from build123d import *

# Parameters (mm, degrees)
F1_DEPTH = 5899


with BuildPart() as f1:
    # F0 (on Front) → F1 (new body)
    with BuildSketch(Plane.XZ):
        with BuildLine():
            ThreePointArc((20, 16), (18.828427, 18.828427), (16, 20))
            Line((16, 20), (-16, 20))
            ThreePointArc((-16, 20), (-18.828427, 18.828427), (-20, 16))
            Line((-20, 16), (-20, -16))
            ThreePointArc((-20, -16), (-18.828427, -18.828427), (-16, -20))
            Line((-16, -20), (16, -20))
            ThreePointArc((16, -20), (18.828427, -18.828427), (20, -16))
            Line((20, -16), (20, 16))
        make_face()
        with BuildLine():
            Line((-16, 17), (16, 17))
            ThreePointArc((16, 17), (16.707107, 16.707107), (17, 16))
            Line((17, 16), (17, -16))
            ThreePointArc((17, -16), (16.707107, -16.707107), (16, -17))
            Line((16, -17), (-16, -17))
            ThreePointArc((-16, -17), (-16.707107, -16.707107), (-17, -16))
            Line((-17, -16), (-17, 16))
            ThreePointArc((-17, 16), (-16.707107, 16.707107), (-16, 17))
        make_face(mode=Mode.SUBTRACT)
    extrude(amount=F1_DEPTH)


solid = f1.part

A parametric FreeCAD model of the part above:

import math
import FreeCAD as App
import Part
import Sketcher
from FreeCAD import Vector
Q = App.Units.Quantity

doc = App.newDocument("Part")
body = doc.addObject("PartDesign::Body", "Body")

sketch1 = doc.addObject("Sketcher::SketchObject", "Sketch")
body.addObject(sketch1)
sketch1.AttachmentSupport = (doc.XZ_Plane, [""])
sketch1.MapMode = "FlatFace"
sketch1.addGeometry(Part.ArcOfCircle(Part.Circle(Vector(16, 16, 0), Vector(0, 0, 1), 4), math.radians(0), math.radians(90)), False)
sketch1.addGeometry(Part.LineSegment(Vector(16, 20, 0), Vector(-16, 20, 0)), False)
sketch1.addGeometry(Part.ArcOfCircle(Part.Circle(Vector(-16, 16, 0), Vector(0, 0, 1), 4), math.radians(90), math.radians(180)), False)
sketch1.addGeometry(Part.LineSegment(Vector(-20, 16, 0), Vector(-20, -16, 0)), False)
sketch1.addGeometry(Part.ArcOfCircle(Part.Circle(Vector(-16, -16, 0), Vector(0, 0, 1), 4), math.radians(-180), math.radians(-90)), False)
sketch1.addGeometry(Part.LineSegment(Vector(-16, -20, 0), Vector(16, -20, 0)), False)
sketch1.addGeometry(Part.ArcOfCircle(Part.Circle(Vector(16, -16, 0), Vector(0, 0, 1), 4), math.radians(-90), math.radians(0)), False)
sketch1.addGeometry(Part.LineSegment(Vector(20, -16, 0), Vector(20, 16, 0)), False)
sketch1.addGeometry(Part.ArcOfCircle(Part.Circle(Vector(-16, 16, 0), Vector(0, 0, 1), 1), math.radians(90), math.radians(180)), False)
sketch1.addGeometry(Part.LineSegment(Vector(-16, 17, 0), Vector(16, 17, 0)), False)
sketch1.addGeometry(Part.ArcOfCircle(Part.Circle(Vector(16, 16, 0), Vector(0, 0, 1), 1), math.radians(0), math.radians(90)), False)
sketch1.addGeometry(Part.LineSegment(Vector(17, 16, 0), Vector(17, -16, 0)), False)
sketch1.addGeometry(Part.ArcOfCircle(Part.Circle(Vector(16, -16, 0), Vector(0, 0, 1), 1), math.radians(-90), math.radians(0)), False)
sketch1.addGeometry(Part.LineSegment(Vector(16, -17, 0), Vector(-16, -17, 0)), False)
sketch1.addGeometry(Part.ArcOfCircle(Part.Circle(Vector(-16, -16, 0), Vector(0, 0, 1), 1), math.radians(180), math.radians(270)), False)
sketch1.addGeometry(Part.LineSegment(Vector(-17, -16, 0), Vector(-17, 16, 0)), False)
sketch1.addConstraint(Sketcher.Constraint("Tangent", 0, 2, 1, 1))
sketch1.addConstraint(Sketcher.Constraint("Tangent", 1, 2, 2, 1))
sketch1.addConstraint(Sketcher.Constraint("Tangent", 2, 2, 3, 1))
sketch1.addConstraint(Sketcher.Constraint("Tangent", 3, 2, 4, 1))
sketch1.addConstraint(Sketcher.Constraint("Tangent", 4, 2, 5, 1))
sketch1.addConstraint(Sketcher.Constraint("Tangent", 5, 2, 6, 1))
sketch1.addConstraint(Sketcher.Constraint("Tangent", 6, 2, 7, 1))
sketch1.addConstraint(Sketcher.Constraint("Tangent", 7, 2, 0, 1))
sketch1.addConstraint(Sketcher.Constraint("Tangent", 8, 1, 9, 1))
sketch1.addConstraint(Sketcher.Constraint("Tangent", 9, 2, 10, 2))
sketch1.addConstraint(Sketcher.Constraint("Tangent", 10, 1, 11, 1))
sketch1.addConstraint(Sketcher.Constraint("Tangent", 11, 2, 12, 2))
sketch1.addConstraint(Sketcher.Constraint("Tangent", 12, 1, 13, 1))
sketch1.addConstraint(Sketcher.Constraint("Tangent", 13, 2, 14, 2))
sketch1.addConstraint(Sketcher.Constraint("Tangent", 14, 1, 15, 1))
sketch1.addConstraint(Sketcher.Constraint("Tangent", 15, 2, 8, 2))
sketch1.addConstraint(Sketcher.Constraint("Horizontal", 1))
sketch1.addConstraint(Sketcher.Constraint("Vertical", 3))
sketch1.addConstraint(Sketcher.Constraint("Horizontal", 5))
sketch1.addConstraint(Sketcher.Constraint("Vertical", 7))
sketch1.addConstraint(Sketcher.Constraint("Horizontal", 9))
sketch1.addConstraint(Sketcher.Constraint("Vertical", 11))
sketch1.addConstraint(Sketcher.Constraint("Horizontal", 13))
sketch1.addConstraint(Sketcher.Constraint("Vertical", 15))
sketch1.addConstraint(Sketcher.Constraint("Coincident", 8, 3, 2, 3))
sketch1.addConstraint(Sketcher.Constraint("Coincident", 10, 3, 0, 3))
sketch1.addConstraint(Sketcher.Constraint("Coincident", 12, 3, 6, 3))
sketch1.addConstraint(Sketcher.Constraint("Equal", 0, 2))
sketch1.addConstraint(Sketcher.Constraint("Equal", 2, 4))
sketch1.addConstraint(Sketcher.Constraint("Equal", 4, 6))
sketch1.addConstraint(Sketcher.Constraint("Equal", 12, 14))
sketch1.addConstraint(Sketcher.Constraint("Symmetric", 0, 3, 4, 3, -1, 1))
sketch1.addConstraint(Sketcher.Constraint("Equal", 13, 3))
sketch1.addConstraint(Sketcher.Constraint("Radius", 0, Q("4 mm")))
sketch1.addConstraint(Sketcher.Constraint("Radius", 8, Q("0.999999 mm")))
sketch1.addConstraint(Sketcher.Constraint("DistanceX", 1, 2, 1, 1, Q("32 mm")))
pad1 = doc.addObject("PartDesign::Pad", "Pad")
body.addObject(pad1)
pad1.Profile = sketch1
pad1.Length = 5899

doc.recompute()
